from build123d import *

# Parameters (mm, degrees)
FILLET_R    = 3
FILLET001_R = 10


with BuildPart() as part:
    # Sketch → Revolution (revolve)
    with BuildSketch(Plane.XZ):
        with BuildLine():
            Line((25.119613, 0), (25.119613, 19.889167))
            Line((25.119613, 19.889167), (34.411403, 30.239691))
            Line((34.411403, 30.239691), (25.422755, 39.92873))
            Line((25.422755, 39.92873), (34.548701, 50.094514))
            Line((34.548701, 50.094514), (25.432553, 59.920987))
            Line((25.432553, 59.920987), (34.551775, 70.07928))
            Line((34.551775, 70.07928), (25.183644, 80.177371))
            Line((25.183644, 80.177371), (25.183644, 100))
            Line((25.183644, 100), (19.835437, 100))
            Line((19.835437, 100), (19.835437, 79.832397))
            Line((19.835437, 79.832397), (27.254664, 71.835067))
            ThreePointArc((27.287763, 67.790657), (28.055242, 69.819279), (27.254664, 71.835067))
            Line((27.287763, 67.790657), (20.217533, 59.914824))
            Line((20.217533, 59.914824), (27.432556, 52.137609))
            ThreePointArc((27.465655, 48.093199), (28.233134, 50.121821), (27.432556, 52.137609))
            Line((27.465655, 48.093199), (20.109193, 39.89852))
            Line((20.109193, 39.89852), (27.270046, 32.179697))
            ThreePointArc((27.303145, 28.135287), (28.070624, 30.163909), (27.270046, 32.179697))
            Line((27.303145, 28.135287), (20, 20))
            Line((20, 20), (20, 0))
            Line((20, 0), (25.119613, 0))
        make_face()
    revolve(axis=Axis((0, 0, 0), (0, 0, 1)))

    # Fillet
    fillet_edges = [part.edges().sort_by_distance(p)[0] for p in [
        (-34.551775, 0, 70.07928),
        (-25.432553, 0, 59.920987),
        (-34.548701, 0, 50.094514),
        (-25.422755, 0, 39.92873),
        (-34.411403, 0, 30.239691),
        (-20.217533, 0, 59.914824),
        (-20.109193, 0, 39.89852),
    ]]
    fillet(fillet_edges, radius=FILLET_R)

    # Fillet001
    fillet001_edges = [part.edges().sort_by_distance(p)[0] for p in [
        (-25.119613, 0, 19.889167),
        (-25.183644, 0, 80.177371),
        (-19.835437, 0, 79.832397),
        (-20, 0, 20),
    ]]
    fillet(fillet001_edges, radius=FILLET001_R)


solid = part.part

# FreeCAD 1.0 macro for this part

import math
import FreeCAD as App
import Part
import Sketcher

V = App.Vector
Q = App.Units.Quantity


def edges_at(feature, points):
    """Names of the edges that pass closest to the given points."""
    edges = feature.Shape.Edges
    near = lambda p: min(range(len(edges)), key=lambda i: edges[i].distToShape(Part.Vertex(*p))[0])
    return sorted({f"Edge{near(p) + 1}" for p in points})

doc = App.newDocument("Part")
body = doc.addObject("PartDesign::Body", "Body")

sketch1 = doc.addObject("Sketcher::SketchObject", "Sketch")
body.addObject(sketch1)
sketch1.AttachmentSupport = (doc.XZ_Plane, [""])
sketch1.MapMode = "FlatFace"
sketch1.addGeometry([
    Part.LineSegment(V(25.1, 0, 0), V(25.1, 19.9, 0)),
    Part.LineSegment(V(25.1, 19.9, 0), V(34.4, 30.2, 0)),
    Part.LineSegment(V(34.4, 30.2, 0), V(25.4, 39.9, 0)),
    Part.LineSegment(V(25.4, 39.9, 0), V(34.5, 50.1, 0)),
    Part.LineSegment(V(34.5, 50.1, 0), V(25.4, 59.9, 0)),
    Part.LineSegment(V(25.4, 59.9, 0), V(34.6, 70.1, 0)),
    Part.LineSegment(V(34.6, 70.1, 0), V(25.2, 80.2, 0)),
    Part.LineSegment(V(25.2, 80.2, 0), V(25.2, 100, 0)),
    Part.LineSegment(V(25.2, 100, 0), V(19.8, 100, 0)),
    Part.LineSegment(V(19.8, 100, 0), V(19.8, 79.8, 0)),
    Part.LineSegment(V(19.8, 79.8, 0), V(27.3, 71.8, 0)),
    Part.ArcOfCircle(Part.Circle(V(25.1, 69.8, 0), V(0, 0, 1), 3), math.radians(-42), math.radians(43)),
    Part.LineSegment(V(27.3, 67.8, 0), V(20.2, 59.9, 0)),
    Part.LineSegment(V(20.2, 59.9, 0), V(27.4, 52.1, 0)),
    Part.ArcOfCircle(Part.Circle(V(25.2, 50.1, 0), V(0, 0, 1), 3), math.radians(-42), math.radians(43)),
    Part.LineSegment(V(27.5, 48.1, 0), V(20.1, 39.9, 0)),
    Part.LineSegment(V(20.1, 39.9, 0), V(27.3, 32.2, 0)),
    Part.ArcOfCircle(Part.Circle(V(25.1, 30.1, 0), V(0, 0, 1), 3), math.radians(-42), math.radians(43)),
    Part.LineSegment(V(27.3, 28.1, 0), V(20, 20, 0)),
    Part.LineSegment(V(20, 20, 0), V(20, 0, 0)),
    Part.LineSegment(V(20, 0, 0), V(25.1, 0, 0)),
], False)
sketch1.addConstraint([
    Sketcher.Constraint("Coincident", 0, 2, 1, 1),
    Sketcher.Constraint("Coincident", 1, 2, 2, 1),
    Sketcher.Constraint("Coincident", 2, 2, 3, 1),
    Sketcher.Constraint("Coincident", 3, 2, 4, 1),
    Sketcher.Constraint("Coincident", 4, 2, 5, 1),
    Sketcher.Constraint("Coincident", 5, 2, 6, 1),
    Sketcher.Constraint("Coincident", 6, 2, 7, 1),
    Sketcher.Constraint("Coincident", 7, 2, 8, 1),
    Sketcher.Constraint("Coincident", 8, 2, 9, 1),
    Sketcher.Constraint("Coincident", 9, 2, 10, 1),
    Sketcher.Constraint("Tangent", 10, 2, 11, 2),
    Sketcher.Constraint("Tangent", 11, 1, 12, 1),
    Sketcher.Constraint("Coincident", 12, 2, 13, 1),
    Sketcher.Constraint("Tangent", 13, 2, 14, 2),
    Sketcher.Constraint("Tangent", 14, 1, 15, 1),
    Sketcher.Constraint("Coincident", 15, 2, 16, 1),
    Sketcher.Constraint("Tangent", 16, 2, 17, 2),
    Sketcher.Constraint("Tangent", 17, 1, 18, 1),
    Sketcher.Constraint("Coincident", 18, 2, 19, 1),
    Sketcher.Constraint("Coincident", 19, 2, 20, 1),
    Sketcher.Constraint("Coincident", 20, 2, 0, 1),
    Sketcher.Constraint("Vertical", 0),
    Sketcher.Constraint("Vertical", 7),
    Sketcher.Constraint("Horizontal", 8),
    Sketcher.Constraint("Vertical", 9),
    Sketcher.Constraint("Vertical", 19),
    Sketcher.Constraint("Horizontal", 20),
    Sketcher.Constraint("Equal", 11, 14),
    Sketcher.Constraint("Equal", 14, 17),
    Sketcher.Constraint("PointOnObject", 19, 2, -1),
    Sketcher.Constraint("Parallel", 1, 3),
    Sketcher.Constraint("Parallel", 2, 4),
    Sketcher.Constraint("Parallel", 3, 5),
    Sketcher.Constraint("Parallel", 4, 6),
    Sketcher.Constraint("Parallel", 6, 10),
    Sketcher.Constraint("Parallel", 5, 12),
    Sketcher.Constraint("Parallel", 10, 13),
    Sketcher.Constraint("Parallel", 12, 15),
    Sketcher.Constraint("Parallel", 13, 16),
    Sketcher.Constraint("Parallel", 15, 18),
    Sketcher.Constraint("Radius", 11, Q("3 mm")),
    Sketcher.Constraint("DistanceY", 19, 2, 19, 1, Q("20 mm")),
    Sketcher.Constraint("DistanceY", -1, 1, 7, 2, Q("100 mm")),
    Sketcher.Constraint("DistanceX", -1, 1, 18, 2, Q("20 mm")),
    Sketcher.Constraint("Distance", 2, Q("13.216402 mm")),
    Sketcher.Constraint("DistanceY", 7, 1, 7, 2, Q("19.822629 mm")),
    Sketcher.Constraint("DistanceX", -1, 1, 3, 2, Q("34.548701 mm")),
    Sketcher.Constraint("DistanceY", -1, 1, 14, 1, Q("48.093199 mm")),
    Sketcher.Constraint("DistanceX", 1, 2, 3, 2, Q("0.137298 mm")),
    Sketcher.Constraint("DistanceX", 11, 3, 6, 2, Q("0.128302 mm")),
    Sketcher.Constraint("DistanceY", 14, 3, 6, 2, Q("30.080101 mm")),
    Sketcher.Constraint("DistanceX", 10, 2, 11, 1, Q("0.033099 mm")),
    Sketcher.Constraint("DistanceX", 12, 2, 14, 3, Q("5.015701 mm")),
    Sketcher.Constraint("DistanceX", 2, 2, 13, 2, Q("2.009801 mm")),
    Sketcher.Constraint("Distance", 4, Q("13.40387 mm")),
    Sketcher.Constraint("Distance", 5, Q("13.651049 mm")),
    Sketcher.Constraint("Distance", 6, Q("13.774372 mm")),
    Sketcher.Constraint("Distance", 15, Q("11.012279 mm")),
    Sketcher.Constraint("DistanceX", 8, 2, 8, 1, Q("5.348207 mm")),
    Sketcher.Constraint("DistanceX", 20, 1, 20, 2, Q("5.119613 mm")),
])
revolution = doc.addObject("PartDesign::Revolution", "Revolution")
body.addObject(revolution)
revolution.Profile = sketch1
revolution.ReferenceAxis = (sketch1, ["V_Axis"])
revolution.Angle = 360
doc.recompute()

fillet = doc.addObject("PartDesign::Fillet", "Fillet")
body.addObject(fillet)
fillet.Base = (revolution, edges_at(revolution, [
    (-34.552, 0, 70.079),
    (-25.433, 0, 59.921),
    (-34.549, 0, 50.095),
    (-25.423, 0, 39.929),
    (-34.411, 0, 30.24),
    (-20.218, 0, 59.915),
    (-20.109, 0, 39.899),
]))
fillet.Radius = 3
doc.recompute()

fillet2 = doc.addObject("PartDesign::Fillet", "Fillet001")
body.addObject(fillet2)
fillet2.Base = (fillet, edges_at(fillet, [
    (-25.12, 0, 19.889),
    (-25.184, 0, 80.177),
    (-19.835, 0, 79.832),
    (-20, 0, 20),
]))
fillet2.Radius = 10

doc.recompute()
